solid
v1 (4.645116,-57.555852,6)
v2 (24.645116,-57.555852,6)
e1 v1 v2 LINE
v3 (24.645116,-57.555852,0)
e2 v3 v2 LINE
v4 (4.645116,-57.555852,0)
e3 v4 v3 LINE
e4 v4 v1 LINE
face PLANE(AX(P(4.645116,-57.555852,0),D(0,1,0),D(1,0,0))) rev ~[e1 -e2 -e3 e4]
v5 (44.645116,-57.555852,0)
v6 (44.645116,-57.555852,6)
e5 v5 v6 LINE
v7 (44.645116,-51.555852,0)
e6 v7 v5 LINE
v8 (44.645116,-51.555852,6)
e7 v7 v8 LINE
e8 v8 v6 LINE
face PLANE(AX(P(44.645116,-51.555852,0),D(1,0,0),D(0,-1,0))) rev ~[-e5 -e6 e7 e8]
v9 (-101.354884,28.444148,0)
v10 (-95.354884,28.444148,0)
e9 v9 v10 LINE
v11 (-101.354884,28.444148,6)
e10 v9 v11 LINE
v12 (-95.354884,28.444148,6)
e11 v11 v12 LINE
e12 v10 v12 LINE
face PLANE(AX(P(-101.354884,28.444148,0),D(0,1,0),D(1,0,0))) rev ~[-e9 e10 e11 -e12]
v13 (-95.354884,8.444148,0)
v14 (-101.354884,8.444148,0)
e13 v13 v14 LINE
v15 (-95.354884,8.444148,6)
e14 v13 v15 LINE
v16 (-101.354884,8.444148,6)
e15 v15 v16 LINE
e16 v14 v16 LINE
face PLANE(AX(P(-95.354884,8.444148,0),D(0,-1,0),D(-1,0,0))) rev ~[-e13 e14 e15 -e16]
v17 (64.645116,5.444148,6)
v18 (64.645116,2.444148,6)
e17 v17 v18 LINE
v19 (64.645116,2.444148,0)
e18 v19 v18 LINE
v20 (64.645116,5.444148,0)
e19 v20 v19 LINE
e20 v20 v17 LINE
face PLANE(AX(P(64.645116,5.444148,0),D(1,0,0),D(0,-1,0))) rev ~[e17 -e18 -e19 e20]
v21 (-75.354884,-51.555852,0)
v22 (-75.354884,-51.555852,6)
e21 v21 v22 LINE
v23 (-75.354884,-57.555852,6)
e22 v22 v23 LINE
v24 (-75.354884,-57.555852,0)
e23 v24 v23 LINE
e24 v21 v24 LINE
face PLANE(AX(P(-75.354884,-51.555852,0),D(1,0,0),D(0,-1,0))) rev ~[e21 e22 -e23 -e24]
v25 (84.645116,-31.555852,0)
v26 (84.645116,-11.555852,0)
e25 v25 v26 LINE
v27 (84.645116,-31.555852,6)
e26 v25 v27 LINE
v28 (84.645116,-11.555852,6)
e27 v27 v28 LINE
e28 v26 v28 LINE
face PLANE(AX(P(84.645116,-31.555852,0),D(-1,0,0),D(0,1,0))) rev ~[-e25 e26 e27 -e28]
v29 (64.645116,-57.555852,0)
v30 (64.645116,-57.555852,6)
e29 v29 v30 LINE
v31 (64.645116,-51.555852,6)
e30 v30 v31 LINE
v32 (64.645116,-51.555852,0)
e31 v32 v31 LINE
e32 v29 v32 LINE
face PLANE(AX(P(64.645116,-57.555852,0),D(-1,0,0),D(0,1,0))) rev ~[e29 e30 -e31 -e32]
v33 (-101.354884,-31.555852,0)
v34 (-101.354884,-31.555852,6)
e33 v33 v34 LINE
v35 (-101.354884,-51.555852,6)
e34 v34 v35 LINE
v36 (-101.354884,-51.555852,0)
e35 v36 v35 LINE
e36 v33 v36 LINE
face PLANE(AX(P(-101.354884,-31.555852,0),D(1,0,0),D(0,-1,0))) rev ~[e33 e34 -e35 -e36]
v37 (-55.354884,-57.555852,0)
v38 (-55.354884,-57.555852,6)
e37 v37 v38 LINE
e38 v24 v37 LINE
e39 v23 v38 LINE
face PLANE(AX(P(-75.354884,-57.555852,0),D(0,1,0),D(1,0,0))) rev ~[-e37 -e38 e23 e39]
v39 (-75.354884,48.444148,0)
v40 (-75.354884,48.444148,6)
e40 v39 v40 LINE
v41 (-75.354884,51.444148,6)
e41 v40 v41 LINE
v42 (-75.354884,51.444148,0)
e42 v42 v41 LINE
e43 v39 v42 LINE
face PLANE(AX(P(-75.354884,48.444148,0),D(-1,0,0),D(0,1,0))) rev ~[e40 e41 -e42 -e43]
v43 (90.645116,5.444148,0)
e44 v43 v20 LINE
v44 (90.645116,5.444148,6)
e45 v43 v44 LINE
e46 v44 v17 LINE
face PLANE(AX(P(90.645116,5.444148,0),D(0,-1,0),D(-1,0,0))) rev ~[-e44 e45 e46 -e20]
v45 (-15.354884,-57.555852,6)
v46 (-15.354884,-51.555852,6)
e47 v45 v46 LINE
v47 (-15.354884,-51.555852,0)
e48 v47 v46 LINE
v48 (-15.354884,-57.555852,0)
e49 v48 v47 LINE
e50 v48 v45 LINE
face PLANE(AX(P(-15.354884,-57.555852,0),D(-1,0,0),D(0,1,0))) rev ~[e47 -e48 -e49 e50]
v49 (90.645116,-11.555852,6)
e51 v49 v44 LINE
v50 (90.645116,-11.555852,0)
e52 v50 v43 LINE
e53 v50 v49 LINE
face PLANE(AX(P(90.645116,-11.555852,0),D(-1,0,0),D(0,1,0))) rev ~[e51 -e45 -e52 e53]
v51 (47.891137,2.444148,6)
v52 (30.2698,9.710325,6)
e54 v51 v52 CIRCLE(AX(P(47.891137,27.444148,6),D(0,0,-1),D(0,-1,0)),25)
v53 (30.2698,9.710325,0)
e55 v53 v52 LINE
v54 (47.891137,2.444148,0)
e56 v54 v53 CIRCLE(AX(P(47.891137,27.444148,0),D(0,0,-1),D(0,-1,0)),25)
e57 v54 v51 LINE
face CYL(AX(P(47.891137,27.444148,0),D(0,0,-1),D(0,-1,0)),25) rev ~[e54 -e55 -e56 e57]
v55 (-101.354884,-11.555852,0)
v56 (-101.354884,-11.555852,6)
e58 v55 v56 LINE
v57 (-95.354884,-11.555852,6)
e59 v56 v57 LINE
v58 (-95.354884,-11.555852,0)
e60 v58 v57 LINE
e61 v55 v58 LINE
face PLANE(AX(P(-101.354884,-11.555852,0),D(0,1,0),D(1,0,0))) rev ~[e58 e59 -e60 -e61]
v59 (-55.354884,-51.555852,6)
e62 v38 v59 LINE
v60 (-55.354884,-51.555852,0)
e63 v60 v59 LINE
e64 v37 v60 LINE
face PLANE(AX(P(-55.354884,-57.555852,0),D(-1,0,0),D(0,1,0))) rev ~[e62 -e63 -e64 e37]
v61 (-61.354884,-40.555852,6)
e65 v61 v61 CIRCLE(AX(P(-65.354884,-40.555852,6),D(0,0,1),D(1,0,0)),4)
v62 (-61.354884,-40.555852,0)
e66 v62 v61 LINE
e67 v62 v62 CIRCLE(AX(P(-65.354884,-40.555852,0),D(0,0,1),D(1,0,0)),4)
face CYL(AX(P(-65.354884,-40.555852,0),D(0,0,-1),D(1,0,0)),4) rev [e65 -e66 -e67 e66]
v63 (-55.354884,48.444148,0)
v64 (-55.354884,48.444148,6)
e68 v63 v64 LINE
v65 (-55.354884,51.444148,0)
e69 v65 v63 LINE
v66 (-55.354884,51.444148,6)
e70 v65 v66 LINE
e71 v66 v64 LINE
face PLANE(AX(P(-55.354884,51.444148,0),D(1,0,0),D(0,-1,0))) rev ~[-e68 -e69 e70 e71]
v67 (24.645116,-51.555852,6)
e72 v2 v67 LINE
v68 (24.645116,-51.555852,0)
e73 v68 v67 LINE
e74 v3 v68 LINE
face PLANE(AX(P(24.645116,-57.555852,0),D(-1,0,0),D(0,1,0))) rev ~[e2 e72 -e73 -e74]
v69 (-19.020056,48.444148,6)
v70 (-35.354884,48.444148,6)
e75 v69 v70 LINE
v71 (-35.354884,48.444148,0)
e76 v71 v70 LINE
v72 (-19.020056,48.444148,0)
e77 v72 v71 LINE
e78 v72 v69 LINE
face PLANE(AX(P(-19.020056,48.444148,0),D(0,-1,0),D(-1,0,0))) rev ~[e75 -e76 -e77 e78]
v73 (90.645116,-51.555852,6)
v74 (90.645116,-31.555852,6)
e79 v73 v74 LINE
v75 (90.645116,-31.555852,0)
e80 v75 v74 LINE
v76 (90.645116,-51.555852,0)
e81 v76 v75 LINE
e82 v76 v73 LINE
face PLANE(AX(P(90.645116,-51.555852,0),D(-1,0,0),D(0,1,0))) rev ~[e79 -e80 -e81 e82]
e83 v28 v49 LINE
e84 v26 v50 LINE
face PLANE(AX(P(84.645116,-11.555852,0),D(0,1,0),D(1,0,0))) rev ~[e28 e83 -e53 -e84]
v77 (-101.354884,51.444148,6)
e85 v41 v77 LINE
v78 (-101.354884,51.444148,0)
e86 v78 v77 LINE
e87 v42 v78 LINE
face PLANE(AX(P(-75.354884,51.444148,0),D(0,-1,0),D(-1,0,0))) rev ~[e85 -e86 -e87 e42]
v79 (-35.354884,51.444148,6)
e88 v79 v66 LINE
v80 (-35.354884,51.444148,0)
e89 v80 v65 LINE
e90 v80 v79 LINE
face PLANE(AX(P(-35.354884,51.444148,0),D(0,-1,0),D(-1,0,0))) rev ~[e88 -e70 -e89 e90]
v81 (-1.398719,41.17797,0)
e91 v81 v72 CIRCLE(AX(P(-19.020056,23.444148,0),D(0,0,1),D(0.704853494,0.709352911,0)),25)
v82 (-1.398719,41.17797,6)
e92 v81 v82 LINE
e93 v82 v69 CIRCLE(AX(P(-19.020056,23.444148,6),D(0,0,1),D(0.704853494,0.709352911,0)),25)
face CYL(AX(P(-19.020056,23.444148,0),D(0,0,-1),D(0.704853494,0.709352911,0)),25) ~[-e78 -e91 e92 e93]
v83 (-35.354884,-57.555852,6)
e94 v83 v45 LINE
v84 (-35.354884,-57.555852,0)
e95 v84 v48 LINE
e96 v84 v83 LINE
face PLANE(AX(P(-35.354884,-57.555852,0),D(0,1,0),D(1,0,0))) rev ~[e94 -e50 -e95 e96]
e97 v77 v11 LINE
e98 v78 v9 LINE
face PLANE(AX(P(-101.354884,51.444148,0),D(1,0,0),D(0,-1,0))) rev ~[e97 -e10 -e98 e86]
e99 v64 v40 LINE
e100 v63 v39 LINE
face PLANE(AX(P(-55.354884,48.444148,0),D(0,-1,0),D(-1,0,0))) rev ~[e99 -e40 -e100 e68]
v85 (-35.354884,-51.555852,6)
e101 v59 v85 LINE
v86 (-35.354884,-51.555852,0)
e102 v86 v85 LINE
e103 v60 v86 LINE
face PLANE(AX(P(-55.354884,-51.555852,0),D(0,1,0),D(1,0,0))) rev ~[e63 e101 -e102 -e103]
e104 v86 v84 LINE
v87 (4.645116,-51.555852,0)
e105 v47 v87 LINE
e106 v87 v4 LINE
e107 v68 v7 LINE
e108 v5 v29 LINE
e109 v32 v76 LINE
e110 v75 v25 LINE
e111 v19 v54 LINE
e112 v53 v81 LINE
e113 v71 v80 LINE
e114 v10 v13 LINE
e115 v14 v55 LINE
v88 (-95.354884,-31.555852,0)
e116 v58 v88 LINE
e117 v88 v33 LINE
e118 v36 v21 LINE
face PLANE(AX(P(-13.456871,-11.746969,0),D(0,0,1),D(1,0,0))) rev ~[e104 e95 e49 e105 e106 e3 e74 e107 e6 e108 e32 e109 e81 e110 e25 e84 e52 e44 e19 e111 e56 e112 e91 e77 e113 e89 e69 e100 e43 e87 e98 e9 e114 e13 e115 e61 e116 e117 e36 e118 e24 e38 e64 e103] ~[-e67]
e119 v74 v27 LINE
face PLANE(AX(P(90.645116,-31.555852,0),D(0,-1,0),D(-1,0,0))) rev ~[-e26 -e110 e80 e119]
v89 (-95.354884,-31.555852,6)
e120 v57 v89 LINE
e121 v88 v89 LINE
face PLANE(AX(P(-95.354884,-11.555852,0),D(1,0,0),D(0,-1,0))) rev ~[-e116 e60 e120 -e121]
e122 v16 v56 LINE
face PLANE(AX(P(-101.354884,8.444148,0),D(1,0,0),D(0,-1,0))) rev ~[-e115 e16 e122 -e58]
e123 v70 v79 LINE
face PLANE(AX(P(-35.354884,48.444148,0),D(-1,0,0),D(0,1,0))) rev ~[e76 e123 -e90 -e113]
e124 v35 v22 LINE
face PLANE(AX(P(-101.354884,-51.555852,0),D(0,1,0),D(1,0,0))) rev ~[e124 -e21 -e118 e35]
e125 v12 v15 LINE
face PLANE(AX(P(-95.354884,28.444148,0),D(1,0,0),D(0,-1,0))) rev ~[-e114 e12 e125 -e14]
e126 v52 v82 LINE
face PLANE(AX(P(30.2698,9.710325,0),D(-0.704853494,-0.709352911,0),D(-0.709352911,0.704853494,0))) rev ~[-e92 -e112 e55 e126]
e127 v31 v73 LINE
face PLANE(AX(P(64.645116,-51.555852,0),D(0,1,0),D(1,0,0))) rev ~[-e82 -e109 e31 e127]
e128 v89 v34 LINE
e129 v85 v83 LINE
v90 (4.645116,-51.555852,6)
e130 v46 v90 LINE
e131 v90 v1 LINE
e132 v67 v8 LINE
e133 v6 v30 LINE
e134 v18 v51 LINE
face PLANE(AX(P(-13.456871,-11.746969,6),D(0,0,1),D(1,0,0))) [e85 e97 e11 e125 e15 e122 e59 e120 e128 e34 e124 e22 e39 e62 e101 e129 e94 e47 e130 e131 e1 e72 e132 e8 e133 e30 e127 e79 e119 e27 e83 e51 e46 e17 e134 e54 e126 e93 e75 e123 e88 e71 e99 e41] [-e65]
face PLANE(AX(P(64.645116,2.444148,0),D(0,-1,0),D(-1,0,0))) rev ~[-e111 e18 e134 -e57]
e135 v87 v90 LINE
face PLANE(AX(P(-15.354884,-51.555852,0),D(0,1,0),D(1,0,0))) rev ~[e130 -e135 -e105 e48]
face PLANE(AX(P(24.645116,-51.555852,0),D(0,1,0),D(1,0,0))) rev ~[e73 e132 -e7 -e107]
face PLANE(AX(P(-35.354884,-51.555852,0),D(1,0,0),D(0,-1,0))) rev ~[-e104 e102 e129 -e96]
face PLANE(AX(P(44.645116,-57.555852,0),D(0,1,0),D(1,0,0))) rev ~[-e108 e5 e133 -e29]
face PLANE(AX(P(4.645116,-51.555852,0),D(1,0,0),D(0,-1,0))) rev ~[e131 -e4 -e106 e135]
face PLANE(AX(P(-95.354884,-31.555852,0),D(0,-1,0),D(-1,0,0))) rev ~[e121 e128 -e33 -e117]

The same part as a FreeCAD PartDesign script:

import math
import FreeCAD as App
import Part
import Sketcher

V = App.Vector

doc = App.newDocument("Part")
body = doc.addObject("PartDesign::Body", "Body")

# Sketch on XY plane
sketch1 = body.newObject("Sketcher::SketchObject", "Sketch")
sketch1.AttachmentSupport = (doc.getObject("XY_Plane"), [""])
sketch1.MapMode = "FlatFace"
sketch1.addGeometry([
    Part.LineSegment(V(-95.4, 28.4, 0), V(-95.4, 8.4, 0)),  # 0
    Part.LineSegment(V(-95.4, 8.4, 0), V(-101.4, 8.4, 0)),  # 1
    Part.LineSegment(V(-101.4, 8.4, 0), V(-101.4, -11.6, 0)),  # 2
    Part.LineSegment(V(-101.4, -11.6, 0), V(-95.4, -11.6, 0)),  # 3
    Part.LineSegment(V(-95.4, -11.6, 0), V(-95.4, -31.6, 0)),  # 4
    Part.LineSegment(V(-95.4, -31.6, 0), V(-101.4, -31.6, 0)),  # 5
    Part.LineSegment(V(-101.4, -31.6, 0), V(-101.4, -51.6, 0)),  # 6
    Part.LineSegment(V(-101.4, -51.6, 0), V(-75.4, -51.6, 0)),  # 7
    Part.LineSegment(V(-75.4, -51.6, 0), V(-75.4, -57.6, 0)),  # 8
    Part.LineSegment(V(-75.4, -57.6, 0), V(-55.4, -57.6, 0)),  # 9
    Part.LineSegment(V(-55.4, -57.6, 0), V(-55.4, -51.6, 0)),  # 10
    Part.LineSegment(V(-55.4, -51.6, 0), V(-35.4, -51.6, 0)),  # 11
    Part.LineSegment(V(-35.4, -51.6, 0), V(-35.4, -57.6, 0)),  # 12
    Part.LineSegment(V(-35.4, -57.6, 0), V(-15.4, -57.6, 0)),  # 13
    Part.LineSegment(V(-15.4, -57.6, 0), V(-15.4, -51.6, 0)),  # 14
    Part.LineSegment(V(-15.4, -51.6, 0), V(4.6, -51.6, 0)),  # 15
    Part.LineSegment(V(4.6, -51.6, 0), V(4.6, -57.6, 0)),  # 16
    Part.LineSegment(V(4.6, -57.6, 0), V(24.6, -57.6, 0)),  # 17
    Part.LineSegment(V(24.6, -57.6, 0), V(24.6, -51.6, 0)),  # 18
    Part.LineSegment(V(24.6, -51.6, 0), V(44.6, -51.6, 0)),  # 19
    Part.LineSegment(V(44.6, -51.6, 0), V(44.6, -57.6, 0)),  # 20
    Part.LineSegment(V(44.6, -57.6, 0), V(64.6, -57.6, 0)),  # 21
    Part.LineSegment(V(64.6, -57.6, 0), V(64.6, -51.6, 0)),  # 22
    Part.LineSegment(V(64.6, -51.6, 0), V(90.6, -51.6, 0)),  # 23
    Part.LineSegment(V(90.6, -51.6, 0), V(90.6, -31.6, 0)),  # 24
    Part.LineSegment(V(90.6, -31.6, 0), V(84.6, -31.6, 0)),  # 25
    Part.LineSegment(V(84.6, -31.6, 0), V(84.6, -11.6, 0)),  # 26
    Part.LineSegment(V(84.6, -11.6, 0), V(90.6, -11.6, 0)),  # 27
    Part.LineSegment(V(90.6, -11.6, 0), V(90.6, 5.4, 0)),  # 28
    Part.LineSegment(V(90.6, 5.4, 0), V(64.6, 5.4, 0)),  # 29
    Part.LineSegment(V(64.6, 5.4, 0), V(64.6, 2.4, 0)),  # 30
    Part.LineSegment(V(64.6, 2.4, 0), V(47.9, 2.4, 0)),  # 31
    Part.ArcOfCircle(Part.Circle(V(47.9, 27.4, 0), V(0, 0, 1), 25), math.radians(-135), math.radians(-90)),  # 32
    Part.LineSegment(V(30.3, 9.7, 0), V(-1.4, 41.2, 0)),  # 33
    Part.ArcOfCircle(Part.Circle(V(-19, 23.4, 0), V(0, 0, 1), 25), math.radians(45), math.radians(90)),  # 34
    Part.LineSegment(V(-19, 48.4, 0), V(-35.4, 48.4, 0)),  # 35
    Part.LineSegment(V(-35.4, 48.4, 0), V(-35.4, 51.4, 0)),  # 36
    Part.LineSegment(V(-35.4, 51.4, 0), V(-55.4, 51.4, 0)),  # 37
    Part.LineSegment(V(-55.4, 51.4, 0), V(-55.4, 48.4, 0)),  # 38
    Part.LineSegment(V(-55.4, 48.4, 0), V(-75.4, 48.4, 0)),  # 39
    Part.LineSegment(V(-75.4, 48.4, 0), V(-75.4, 51.4, 0)),  # 40
    Part.LineSegment(V(-75.4, 51.4, 0), V(-101.4, 51.4, 0)),  # 41
    Part.LineSegment(V(-101.4, 51.4, 0), V(-101.4, 28.4, 0)),  # 42
    Part.LineSegment(V(-101.4, 28.4, 0), V(-95.4, 28.4, 0)),  # 43
    Part.Circle(V(-65.4, -40.6, 0), V(0, 0, 1), 4),  # 44
], False)
sketch1.addConstraint([
    Sketcher.Constraint("Coincident", 0, 2, 1, 1),
    Sketcher.Constraint("Coincident", 1, 2, 2, 1),
    Sketcher.Constraint("Coincident", 2, 2, 3, 1),
    Sketcher.Constraint("Coincident", 3, 2, 4, 1),
    Sketcher.Constraint("Coincident", 4, 2, 5, 1),
    Sketcher.Constraint("Coincident", 5, 2, 6, 1),
    Sketcher.Constraint("Coincident", 6, 2, 7, 1),
    Sketcher.Constraint("Coincident", 7, 2, 8, 1),
    Sketcher.Constraint("Coincident", 8, 2, 9, 1),
    Sketcher.Constraint("Coincident", 9, 2, 10, 1),
    Sketcher.Constraint("Coincident", 10, 2, 11, 1),
    Sketcher.Constraint("Coincident", 11, 2, 12, 1),
    Sketcher.Constraint("Coincident", 12, 2, 13, 1),
    Sketcher.Constraint("Coincident", 13, 2, 14, 1),
    Sketcher.Constraint("Coincident", 14, 2, 15, 1),
    Sketcher.Constraint("Coincident", 15, 2, 16, 1),
    Sketcher.Constraint("Coincident", 16, 2, 17, 1),
    Sketcher.Constraint("Coincident", 17, 2, 18, 1),
    Sketcher.Constraint("Coincident", 18, 2, 19, 1),
    Sketcher.Constraint("Coincident", 19, 2, 20, 1),
    Sketcher.Constraint("Coincident", 20, 2, 21, 1),
    Sketcher.Constraint("Coincident", 21, 2, 22, 1),
    Sketcher.Constraint("Coincident", 22, 2, 23, 1),
    Sketcher.Constraint("Coincident", 23, 2, 24, 1),
    Sketcher.Constraint("Coincident", 24, 2, 25, 1),
    Sketcher.Constraint("Coincident", 25, 2, 26, 1),
    Sketcher.Constraint("Coincident", 26, 2, 27, 1),
    Sketcher.Constraint("Coincident", 27, 2, 28, 1),
    Sketcher.Constraint("Coincident", 28, 2, 29, 1),
    Sketcher.Constraint("Coincident", 29, 2, 30, 1),
    Sketcher.Constraint("Coincident", 30, 2, 31, 1),
    Sketcher.Constraint("Tangent", 31, 2, 32, 2),
    Sketcher.Constraint("Tangent", 32, 1, 33, 1),
    Sketcher.Constraint("Tangent", 33, 2, 34, 1),
    Sketcher.Constraint("Tangent", 34, 2, 35, 1),
    Sketcher.Constraint("Coincident", 35, 2, 36, 1),
    Sketcher.Constraint("Coincident", 36, 2, 37, 1),
    Sketcher.Constraint("Coincident", 37, 2, 38, 1),
    Sketcher.Constraint("Coincident", 38, 2, 39, 1),
    Sketcher.Constraint("Coincident", 39, 2, 40, 1),
    Sketcher.Constraint("Coincident", 40, 2, 41, 1),
    Sketcher.Constraint("Coincident", 41, 2, 42, 1),
    Sketcher.Constraint("Coincident", 42, 2, 43, 1),
    Sketcher.Constraint("Coincident", 43, 2, 0, 1),
    Sketcher.Constraint("Vertical", 0),
    Sketcher.Constraint("Horizontal", 1),
    Sketcher.Constraint("Vertical", 2),
    Sketcher.Constraint("Horizontal", 3),
    Sketcher.Constraint("Vertical", 4),
    Sketcher.Constraint("Horizontal", 5),
    Sketcher.Constraint("Vertical", 6),
    Sketcher.Constraint("Horizontal", 7),
    Sketcher.Constraint("Vertical", 8),
    Sketcher.Constraint("Horizontal", 9),
    Sketcher.Constraint("Vertical", 10),
    Sketcher.Constraint("Horizontal", 11),
    Sketcher.Constraint("Vertical", 12),
    Sketcher.Constraint("Horizontal", 13),
    Sketcher.Constraint("Vertical", 14),
    Sketcher.Constraint("Horizontal", 15),
    Sketcher.Constraint("Vertical", 16),
    Sketcher.Constraint("Horizontal", 17),
    Sketcher.Constraint("Vertical", 18),
    Sketcher.Constraint("Horizontal", 19),
    Sketcher.Constraint("Vertical", 20),
    Sketcher.Constraint("Horizontal", 21),
    Sketcher.Constraint("Vertical", 22),
    Sketcher.Constraint("Horizontal", 23),
    Sketcher.Constraint("Vertical", 24),
    Sketcher.Constraint("Horizontal", 25),
    Sketcher.Constraint("Vertical", 26),
    Sketcher.Constraint("Horizontal", 27),
    Sketcher.Constraint("Vertical", 28),
    Sketcher.Constraint("Horizontal", 29),
    Sketcher.Constraint("Vertical", 30),
    Sketcher.Constraint("Horizontal", 31),
    Sketcher.Constraint("Horizontal", 35),
    Sketcher.Constraint("Vertical", 36),
    Sketcher.Constraint("Horizontal", 37),
    Sketcher.Constraint("Vertical", 38),
    Sketcher.Constraint("Horizontal", 39),
    Sketcher.Constraint("Vertical", 40),
    Sketcher.Constraint("Horizontal", 41),
    Sketcher.Constraint("Vertical", 42),
    Sketcher.Constraint("Horizontal", 43),
    Sketcher.Constraint("Equal", 32, 34),
    Sketcher.Constraint("Horizontal", 7, 2, 10, 2),
    Sketcher.Constraint("Horizontal", 9, 2, 12, 2),
    Sketcher.Constraint("Horizontal", 11, 2, 14, 2),
    Sketcher.Constraint("Horizontal", 13, 2, 16, 2),
    Sketcher.Constraint("Horizontal", 15, 2, 18, 2),
    Sketcher.Constraint("Horizontal", 17, 2, 20, 2),
    Sketcher.Constraint("Horizontal", 19, 2, 22, 2),
    Sketcher.Constraint("Horizontal", 5, 2, 24, 2),
    Sketcher.Constraint("Horizontal", 3, 2, 26, 2),
    Sketcher.Constraint("Horizontal", 35, 2, 38, 2),
    Sketcher.Constraint("Horizontal", 37, 2, 40, 2),
    Sketcher.Constraint("Vertical", 0, 2, 3, 2),
    Sketcher.Constraint("Vertical", 2, 2, 5, 2),
    Sketcher.Constraint("Vertical", 24, 2, 27, 2),
    Sketcher.Constraint("Vertical", 22, 2, 29, 2),
    Sketcher.Constraint("Vertical", 12, 2, 35, 2),
    Sketcher.Constraint("Vertical", 10, 2, 37, 2),
    Sketcher.Constraint("Vertical", 8, 2, 39, 2),
    Sketcher.Constraint("Vertical", 6, 2, 41, 2),
    Sketcher.Constraint("Equal", 9, 11),
    Sketcher.Constraint("Equal", 11, 13),
    Sketcher.Constraint("Equal", 13, 15),
    Sketcher.Constraint("Equal", 15, 17),
    Sketcher.Constraint("Equal", 17, 19),
    Sketcher.Constraint("Equal", 19, 21),
    Sketcher.Constraint("Equal", 7, 23),
    Sketcher.Constraint("Equal", 5, 25),
    Sketcher.Constraint("Equal", 39, 0),
    Sketcher.Constraint("Equal", 0, 2),
    Sketcher.Constraint("Equal", 2, 4),
    Sketcher.Constraint("Equal", 4, 6),
    Sketcher.Constraint("Equal", 43, 8),
    Sketcher.Constraint("Equal", 30, 36),
    Sketcher.Constraint("Diameter", 44, 8.0),
    Sketcher.Constraint("Radius", 32, 25.0),
    Sketcher.Constraint("DistanceX", 1, 2, 1, 1, 6.0),
    Sketcher.Constraint("DistanceX", 7, 1, 7, 2, 26.0),
    Sketcher.Constraint("DistanceX", 9, 1, 9, 2, 20.0),
    Sketcher.Constraint("DistanceY", 28, 1, 28, 2, 17.0),
    Sketcher.Constraint("DistanceY", 30, 2, 30, 1, 3.0),
    Sketcher.Constraint("DistanceY", 42, 2, 42, 1, 23.0),
    Sketcher.Constraint("DistanceY", 44, 3, 34, 3, 64.0),
    Sketcher.Constraint("DistanceX", 0, 2, 44, 3, 30.0),
    Sketcher.Constraint("DistanceX", 31, 2, 31, 1, 16.753979),
    Sketcher.Constraint("DistanceX", 35, 2, 35, 1, 16.334828),
    Sketcher.Constraint("DistanceX", -1, 1, 32, 1, 30.2698),
    Sketcher.Constraint("DistanceY", -1, 1, 33, 2, 41.17797),
])
pad1 = body.newObject("PartDesign::Pad", "Pad")
pad1.Profile = sketch1
pad1.Length = 6

doc.recompute()
